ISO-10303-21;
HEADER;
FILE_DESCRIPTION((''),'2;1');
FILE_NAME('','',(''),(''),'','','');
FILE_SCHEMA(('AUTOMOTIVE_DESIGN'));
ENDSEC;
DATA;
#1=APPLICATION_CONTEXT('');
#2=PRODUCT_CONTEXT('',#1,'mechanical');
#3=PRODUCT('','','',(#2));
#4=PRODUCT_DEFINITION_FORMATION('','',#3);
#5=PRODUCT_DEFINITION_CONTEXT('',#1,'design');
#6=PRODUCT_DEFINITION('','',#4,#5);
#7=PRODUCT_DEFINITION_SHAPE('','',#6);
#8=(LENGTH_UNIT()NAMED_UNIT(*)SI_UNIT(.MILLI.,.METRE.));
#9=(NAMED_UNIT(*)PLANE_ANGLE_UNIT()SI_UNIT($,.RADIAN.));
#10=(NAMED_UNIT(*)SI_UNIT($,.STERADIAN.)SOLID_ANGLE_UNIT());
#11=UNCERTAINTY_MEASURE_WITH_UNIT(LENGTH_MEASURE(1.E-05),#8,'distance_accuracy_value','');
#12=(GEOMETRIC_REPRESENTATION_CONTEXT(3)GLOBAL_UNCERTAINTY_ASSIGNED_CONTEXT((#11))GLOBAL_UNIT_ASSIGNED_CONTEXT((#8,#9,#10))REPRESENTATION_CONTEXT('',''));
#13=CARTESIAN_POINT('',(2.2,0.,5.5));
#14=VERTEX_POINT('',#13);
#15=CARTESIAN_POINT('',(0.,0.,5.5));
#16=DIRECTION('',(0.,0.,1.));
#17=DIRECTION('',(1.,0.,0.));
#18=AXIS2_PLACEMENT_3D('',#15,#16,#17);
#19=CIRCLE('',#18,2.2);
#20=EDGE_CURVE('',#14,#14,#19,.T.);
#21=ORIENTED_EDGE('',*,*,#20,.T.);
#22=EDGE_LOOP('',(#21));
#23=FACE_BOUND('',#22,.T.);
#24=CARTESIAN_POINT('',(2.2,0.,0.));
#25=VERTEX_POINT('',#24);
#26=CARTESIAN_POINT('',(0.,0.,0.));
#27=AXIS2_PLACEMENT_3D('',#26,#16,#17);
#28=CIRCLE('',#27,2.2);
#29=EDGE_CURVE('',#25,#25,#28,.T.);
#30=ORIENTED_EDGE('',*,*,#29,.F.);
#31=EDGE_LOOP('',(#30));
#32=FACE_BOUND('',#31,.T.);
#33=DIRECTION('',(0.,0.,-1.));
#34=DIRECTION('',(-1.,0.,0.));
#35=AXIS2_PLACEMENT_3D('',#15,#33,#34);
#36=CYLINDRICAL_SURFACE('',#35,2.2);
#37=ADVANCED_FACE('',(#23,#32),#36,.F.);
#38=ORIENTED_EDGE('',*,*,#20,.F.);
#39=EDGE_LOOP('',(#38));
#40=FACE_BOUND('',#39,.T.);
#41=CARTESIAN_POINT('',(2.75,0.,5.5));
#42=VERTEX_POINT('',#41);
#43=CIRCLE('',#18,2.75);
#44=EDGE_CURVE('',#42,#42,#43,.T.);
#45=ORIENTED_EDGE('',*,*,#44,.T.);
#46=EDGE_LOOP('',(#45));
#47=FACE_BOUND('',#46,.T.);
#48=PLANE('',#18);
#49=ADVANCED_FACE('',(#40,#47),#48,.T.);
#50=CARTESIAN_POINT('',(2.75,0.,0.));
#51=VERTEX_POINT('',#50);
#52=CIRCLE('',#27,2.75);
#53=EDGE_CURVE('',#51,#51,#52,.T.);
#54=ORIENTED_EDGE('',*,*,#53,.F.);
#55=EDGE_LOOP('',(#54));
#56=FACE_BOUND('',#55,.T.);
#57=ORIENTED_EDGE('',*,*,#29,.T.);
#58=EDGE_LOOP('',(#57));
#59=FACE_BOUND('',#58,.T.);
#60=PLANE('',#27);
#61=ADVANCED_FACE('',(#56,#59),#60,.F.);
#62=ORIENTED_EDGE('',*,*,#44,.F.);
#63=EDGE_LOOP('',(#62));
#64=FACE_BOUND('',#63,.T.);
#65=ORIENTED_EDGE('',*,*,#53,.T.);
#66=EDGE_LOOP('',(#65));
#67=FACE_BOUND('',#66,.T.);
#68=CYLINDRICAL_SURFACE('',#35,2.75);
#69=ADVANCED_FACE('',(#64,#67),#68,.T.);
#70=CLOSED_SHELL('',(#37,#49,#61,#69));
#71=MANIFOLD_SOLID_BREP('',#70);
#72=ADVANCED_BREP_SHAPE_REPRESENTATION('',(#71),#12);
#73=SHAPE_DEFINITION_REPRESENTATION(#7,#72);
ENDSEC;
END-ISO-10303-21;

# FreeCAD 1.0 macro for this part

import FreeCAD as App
import Part
import Sketcher

doc = App.newDocument("Part")
body = doc.addObject("PartDesign::Body", "Body")

# Sketch on XY plane
sketch1 = doc.addObject("Sketcher::SketchObject", "Sketch")
body.addObject(sketch1)
sketch1.AttachmentSupport = (doc.XY_Plane, [""])
sketch1.MapMode = "FlatFace"
sketch1.addGeometry([
    Part.Circle(App.Vector(0, 0, 0), App.Vector(0, 0, 1), 2.75),
    Part.Circle(App.Vector(0, 0, 0), App.Vector(0, 0, 1), 2.2),
], False)
sketch1.addConstraint([
    Sketcher.Constraint("Coincident", 0, 3, -1, 1),
    Sketcher.Constraint("Coincident", 1, 3, -1, 1),
    Sketcher.Constraint("Diameter", 0, 5.5),
    Sketcher.Constraint("Diameter", 1, 4.4),
])
pad1 = doc.addObject("PartDesign::Pad", "Pad")
body.addObject(pad1)
pad1.Profile = sketch1
pad1.Length = 5.5

doc.recompute()
